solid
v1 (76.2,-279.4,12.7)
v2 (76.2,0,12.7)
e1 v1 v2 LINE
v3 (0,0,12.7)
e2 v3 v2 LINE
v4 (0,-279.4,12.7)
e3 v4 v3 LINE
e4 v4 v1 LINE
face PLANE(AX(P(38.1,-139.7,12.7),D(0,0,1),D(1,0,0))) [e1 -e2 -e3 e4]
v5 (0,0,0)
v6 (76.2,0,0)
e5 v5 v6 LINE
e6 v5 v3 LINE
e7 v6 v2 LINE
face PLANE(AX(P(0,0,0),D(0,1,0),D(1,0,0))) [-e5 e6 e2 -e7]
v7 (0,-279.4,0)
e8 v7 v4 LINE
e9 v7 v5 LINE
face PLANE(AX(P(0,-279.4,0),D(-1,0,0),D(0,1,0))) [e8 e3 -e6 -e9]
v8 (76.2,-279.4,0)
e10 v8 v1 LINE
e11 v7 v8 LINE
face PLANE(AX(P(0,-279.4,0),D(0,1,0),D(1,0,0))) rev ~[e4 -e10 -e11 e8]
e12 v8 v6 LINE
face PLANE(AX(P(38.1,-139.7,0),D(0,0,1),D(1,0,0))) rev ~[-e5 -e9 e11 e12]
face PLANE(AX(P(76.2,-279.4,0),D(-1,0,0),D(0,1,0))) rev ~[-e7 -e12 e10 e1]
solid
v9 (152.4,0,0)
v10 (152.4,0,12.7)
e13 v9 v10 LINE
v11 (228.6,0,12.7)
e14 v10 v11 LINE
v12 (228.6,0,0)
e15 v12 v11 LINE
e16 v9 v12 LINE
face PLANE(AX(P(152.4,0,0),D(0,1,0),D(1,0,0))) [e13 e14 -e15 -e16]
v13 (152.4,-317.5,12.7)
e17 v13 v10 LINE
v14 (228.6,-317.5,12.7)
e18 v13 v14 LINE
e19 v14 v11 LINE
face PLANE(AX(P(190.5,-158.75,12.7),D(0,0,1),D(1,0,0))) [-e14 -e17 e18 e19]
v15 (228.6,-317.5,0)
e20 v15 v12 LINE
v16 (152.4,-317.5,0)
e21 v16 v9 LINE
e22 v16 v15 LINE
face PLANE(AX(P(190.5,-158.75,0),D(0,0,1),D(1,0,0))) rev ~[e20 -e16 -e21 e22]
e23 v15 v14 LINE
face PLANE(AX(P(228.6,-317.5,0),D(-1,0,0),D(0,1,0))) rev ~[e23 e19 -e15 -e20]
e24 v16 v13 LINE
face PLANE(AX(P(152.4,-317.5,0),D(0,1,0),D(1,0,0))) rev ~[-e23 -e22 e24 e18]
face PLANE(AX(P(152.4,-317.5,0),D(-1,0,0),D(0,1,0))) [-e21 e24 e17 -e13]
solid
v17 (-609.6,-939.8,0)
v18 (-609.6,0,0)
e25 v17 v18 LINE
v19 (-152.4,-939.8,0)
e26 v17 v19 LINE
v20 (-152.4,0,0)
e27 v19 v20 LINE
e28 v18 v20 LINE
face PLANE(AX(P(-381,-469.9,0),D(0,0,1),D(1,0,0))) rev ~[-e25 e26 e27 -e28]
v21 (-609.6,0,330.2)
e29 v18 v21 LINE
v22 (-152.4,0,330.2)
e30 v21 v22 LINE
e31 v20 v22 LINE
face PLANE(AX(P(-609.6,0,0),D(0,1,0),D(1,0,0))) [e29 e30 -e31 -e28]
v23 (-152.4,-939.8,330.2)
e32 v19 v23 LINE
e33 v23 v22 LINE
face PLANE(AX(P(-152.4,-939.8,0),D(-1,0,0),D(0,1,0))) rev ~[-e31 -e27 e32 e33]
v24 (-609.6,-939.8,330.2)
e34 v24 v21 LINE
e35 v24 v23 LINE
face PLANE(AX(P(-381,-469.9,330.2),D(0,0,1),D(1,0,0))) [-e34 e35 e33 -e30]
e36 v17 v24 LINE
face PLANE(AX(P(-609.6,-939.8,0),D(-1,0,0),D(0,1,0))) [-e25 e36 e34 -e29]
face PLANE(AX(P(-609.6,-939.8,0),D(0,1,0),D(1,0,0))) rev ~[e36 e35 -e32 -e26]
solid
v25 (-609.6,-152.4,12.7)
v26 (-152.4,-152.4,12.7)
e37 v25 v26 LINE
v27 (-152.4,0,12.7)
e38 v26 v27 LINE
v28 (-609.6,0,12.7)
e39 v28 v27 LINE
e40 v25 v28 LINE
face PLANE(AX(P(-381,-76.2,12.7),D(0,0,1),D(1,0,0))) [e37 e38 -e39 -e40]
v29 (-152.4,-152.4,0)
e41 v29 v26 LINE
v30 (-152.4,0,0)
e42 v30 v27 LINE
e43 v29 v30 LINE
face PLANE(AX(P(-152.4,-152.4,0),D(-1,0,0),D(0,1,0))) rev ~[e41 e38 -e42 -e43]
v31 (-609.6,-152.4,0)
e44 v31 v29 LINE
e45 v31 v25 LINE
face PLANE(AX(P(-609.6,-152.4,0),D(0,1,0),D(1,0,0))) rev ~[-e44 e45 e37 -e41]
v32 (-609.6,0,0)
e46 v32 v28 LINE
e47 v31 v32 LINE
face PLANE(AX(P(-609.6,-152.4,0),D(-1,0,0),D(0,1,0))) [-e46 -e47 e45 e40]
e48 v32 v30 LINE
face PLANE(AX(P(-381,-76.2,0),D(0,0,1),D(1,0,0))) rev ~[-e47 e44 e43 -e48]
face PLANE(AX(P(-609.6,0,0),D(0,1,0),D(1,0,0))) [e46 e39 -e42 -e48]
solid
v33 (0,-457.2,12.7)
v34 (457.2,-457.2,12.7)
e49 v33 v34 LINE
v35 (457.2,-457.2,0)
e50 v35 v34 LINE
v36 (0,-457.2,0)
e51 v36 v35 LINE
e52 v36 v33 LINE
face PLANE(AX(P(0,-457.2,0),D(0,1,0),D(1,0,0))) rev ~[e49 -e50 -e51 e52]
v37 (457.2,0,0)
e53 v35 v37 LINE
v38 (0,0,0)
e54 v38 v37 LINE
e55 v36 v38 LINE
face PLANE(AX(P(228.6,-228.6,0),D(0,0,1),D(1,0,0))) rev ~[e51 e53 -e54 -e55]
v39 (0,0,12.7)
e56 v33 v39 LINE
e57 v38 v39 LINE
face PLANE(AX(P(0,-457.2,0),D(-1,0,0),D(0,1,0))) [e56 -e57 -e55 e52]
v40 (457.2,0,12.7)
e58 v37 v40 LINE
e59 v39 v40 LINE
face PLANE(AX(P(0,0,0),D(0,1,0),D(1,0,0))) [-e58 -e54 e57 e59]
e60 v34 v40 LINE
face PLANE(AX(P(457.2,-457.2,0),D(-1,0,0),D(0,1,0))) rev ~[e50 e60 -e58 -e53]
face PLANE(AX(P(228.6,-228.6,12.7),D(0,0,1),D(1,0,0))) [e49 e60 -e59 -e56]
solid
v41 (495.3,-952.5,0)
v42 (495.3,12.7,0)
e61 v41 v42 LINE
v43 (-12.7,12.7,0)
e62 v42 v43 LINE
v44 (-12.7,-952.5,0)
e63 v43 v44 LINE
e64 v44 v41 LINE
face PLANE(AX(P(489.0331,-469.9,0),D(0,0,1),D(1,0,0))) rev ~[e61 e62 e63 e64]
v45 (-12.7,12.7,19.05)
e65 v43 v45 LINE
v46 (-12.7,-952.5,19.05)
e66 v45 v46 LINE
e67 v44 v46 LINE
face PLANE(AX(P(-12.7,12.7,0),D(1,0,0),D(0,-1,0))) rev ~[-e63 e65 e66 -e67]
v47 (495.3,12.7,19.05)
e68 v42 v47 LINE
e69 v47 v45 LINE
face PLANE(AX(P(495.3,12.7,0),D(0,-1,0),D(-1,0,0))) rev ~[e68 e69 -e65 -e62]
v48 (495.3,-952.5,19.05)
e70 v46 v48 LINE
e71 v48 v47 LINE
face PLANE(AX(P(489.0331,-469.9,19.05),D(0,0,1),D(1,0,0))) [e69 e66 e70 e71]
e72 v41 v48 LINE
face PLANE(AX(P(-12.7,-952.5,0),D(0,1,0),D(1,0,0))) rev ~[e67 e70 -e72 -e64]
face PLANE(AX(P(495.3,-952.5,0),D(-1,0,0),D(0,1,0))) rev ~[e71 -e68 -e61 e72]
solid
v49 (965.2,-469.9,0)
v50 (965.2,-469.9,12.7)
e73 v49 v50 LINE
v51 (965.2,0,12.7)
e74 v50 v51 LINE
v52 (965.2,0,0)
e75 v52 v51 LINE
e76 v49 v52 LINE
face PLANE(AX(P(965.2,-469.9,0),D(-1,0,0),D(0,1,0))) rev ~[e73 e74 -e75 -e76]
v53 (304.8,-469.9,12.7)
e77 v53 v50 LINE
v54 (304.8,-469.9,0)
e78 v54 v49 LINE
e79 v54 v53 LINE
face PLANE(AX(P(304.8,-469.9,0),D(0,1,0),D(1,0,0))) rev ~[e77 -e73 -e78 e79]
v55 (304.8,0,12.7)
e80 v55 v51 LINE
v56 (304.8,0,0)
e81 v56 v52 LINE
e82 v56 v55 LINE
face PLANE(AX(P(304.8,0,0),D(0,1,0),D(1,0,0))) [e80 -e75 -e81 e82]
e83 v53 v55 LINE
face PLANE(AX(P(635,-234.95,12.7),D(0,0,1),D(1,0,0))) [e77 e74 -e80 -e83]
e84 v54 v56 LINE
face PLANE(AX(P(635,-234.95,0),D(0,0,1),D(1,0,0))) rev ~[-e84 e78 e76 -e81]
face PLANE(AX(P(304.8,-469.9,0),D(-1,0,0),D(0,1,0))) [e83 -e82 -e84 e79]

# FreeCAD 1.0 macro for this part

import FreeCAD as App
import Part
import Sketcher
from FreeCAD import Vector
Q = App.Units.Quantity


def add_polygon(sketch, points):
    """Adds a closed chain of lines whose ends are joined by coincident constraints."""
    first, n = sketch.GeometryCount, len(points)
    for a, b in zip(points, points[1:] + points[:1]):
        sketch.addGeometry(Part.LineSegment(App.Vector(*a, 0), App.Vector(*b, 0)), False)
    for i in range(n):
        sketch.addConstraint(Sketcher.Constraint("Coincident", first + i, 2, first + (i + 1) % n, 1))

doc = App.newDocument("Part")
body = doc.addObject("PartDesign::Body", "Body")

# Sketch on XY plane
sketch1 = doc.addObject("Sketcher::SketchObject", "Sketch")
body.addObject(sketch1)
sketch1.AttachmentSupport = (doc.XY_Plane, [""])
sketch1.MapMode = "FlatFace"
add_polygon(sketch1, [(-610, 0), (-610, -940), (-152, -940), (-152, 0)])  # lines 0-3
sketch1.addConstraint([
    Sketcher.Constraint("Vertical", 0),
    Sketcher.Constraint("Horizontal", 1),
    Sketcher.Constraint("Vertical", 2),
    Sketcher.Constraint("Horizontal", 3),
    Sketcher.Constraint("PointOnObject", 2, 2, -1),
    Sketcher.Constraint("DistanceX", 1, 1, 1, 2, Q("18 in")),
    Sketcher.Constraint("DistanceY", 0, 2, 0, 1, Q("37 in")),
    Sketcher.Constraint("DistanceX", 0, 2, -1, 1, Q("24 in")),
])
pad1 = doc.addObject("PartDesign::Pad", "Pad")
body.addObject(pad1)
pad1.Profile = sketch1
pad1.Length = Q("13 in")
body2 = doc.addObject("PartDesign::Body", "Body001")

# Sketch on XY plane
sketch2 = doc.addObject("Sketcher::SketchObject", "Sketch001")
body2.addObject(sketch2)
sketch2.AttachmentSupport = (doc.getObject("XY_Plane001"), [""])
sketch2.MapMode = "FlatFace"
add_polygon(sketch2, [(495, -952), (495, 13), (-13, 13), (-13, -952)])  # lines 0-3
sketch2.addConstraint([
    Sketcher.Constraint("Vertical", 0),
    Sketcher.Constraint("Horizontal", 1),
    Sketcher.Constraint("Vertical", 2),
    Sketcher.Constraint("Horizontal", 3),
    Sketcher.Constraint("DistanceX", 1, 2, 1, 1, Q("20 in")),
    Sketcher.Constraint("DistanceY", 0, 1, 0, 2, Q("38 in")),
    Sketcher.Constraint("DistanceX", -1, 1, 0, 2, Q("19.5 in")),
    Sketcher.Constraint("DistanceY", -1, 1, 0, 2, Q("0.5 in")),
])
pad2 = doc.addObject("PartDesign::Pad", "Pad001")
body2.addObject(pad2)
pad2.Profile = sketch2
pad2.Length = Q("0.75 in")
body3 = doc.addObject("PartDesign::Body", "Body002")
body3.AllowCompound = True

# Sketch on XY plane
sketch3 = doc.addObject("Sketcher::SketchObject", "Sketch002")
body3.addObject(sketch3)
sketch3.AttachmentSupport = (doc.getObject("XY_Plane002"), [""])
sketch3.MapMode = "FlatFace"
add_polygon(sketch3, [(305, 0), (305, -470), (965, -470), (965, 0)])  # lines 0-3
add_polygon(sketch3, [(152, 0), (152, -318), (229, -318), (229, 0)])  # lines 4-7
add_polygon(sketch3, [(0, 0), (0, -279), (76, -279), (76, 0)])  # lines 8-11
sketch3.addConstraint([
    Sketcher.Constraint("Vertical", 0),
    Sketcher.Constraint("Horizontal", 1),
    Sketcher.Constraint("Vertical", 2),
    Sketcher.Constraint("Horizontal", 3),
    Sketcher.Constraint("Vertical", 4),
    Sketcher.Constraint("Horizontal", 5),
    Sketcher.Constraint("Vertical", 6),
    Sketcher.Constraint("Horizontal", 7),
    Sketcher.Constraint("Vertical", 8),
    Sketcher.Constraint("Horizontal", 9),
    Sketcher.Constraint("Vertical", 10),
    Sketcher.Constraint("Horizontal", 11),
    Sketcher.Constraint("Coincident", 11, 2, -1, 1),
    Sketcher.Constraint("PointOnObject", 2, 2, -1),
    Sketcher.Constraint("PointOnObject", 6, 2, -1),
    Sketcher.Constraint("Equal", 7, 9),
    Sketcher.Constraint("DistanceX", 1, 1, 1, 2, Q("26 in")),
    Sketcher.Constraint("DistanceX", 5, 1, 5, 2, Q("3 in")),
    Sketcher.Constraint("DistanceY", 8, 2, 8, 1, Q("11 in")),
    Sketcher.Constraint("DistanceY", 0, 2, 0, 1, Q("18.5 in")),
    Sketcher.Constraint("DistanceY", 4, 2, 4, 1, Q("12.5 in")),
    Sketcher.Constraint("DistanceX", -1, 1, 0, 2, Q("12 in")),
    Sketcher.Constraint("DistanceX", -1, 1, 4, 2, Q("6 in")),
])
pad3 = doc.addObject("PartDesign::Pad", "Pad002")
body3.addObject(pad3)
pad3.Profile = sketch3
pad3.Length = Q("0.5 in")
body4 = doc.addObject("PartDesign::Body", "Body003")
body4.AllowCompound = True

# Sketch on XY plane
sketch4 = doc.addObject("Sketcher::SketchObject", "Sketch003")
body4.addObject(sketch4)
sketch4.AttachmentSupport = (doc.getObject("XY_Plane003"), [""])
sketch4.MapMode = "FlatFace"
add_polygon(sketch4, [(-610, 0), (-610, -152), (-152, -152), (-152, 0)])  # lines 0-3
add_polygon(sketch4, [(0, 0), (0, -457), (457, -457), (457, 0)])  # lines 4-7
sketch4.addConstraint([
    Sketcher.Constraint("Vertical", 0),
    Sketcher.Constraint("Horizontal", 1),
    Sketcher.Constraint("Vertical", 2),
    Sketcher.Constraint("Horizontal", 3),
    Sketcher.Constraint("Vertical", 4),
    Sketcher.Constraint("Horizontal", 5),
    Sketcher.Constraint("Vertical", 6),
    Sketcher.Constraint("Horizontal", 7),
    Sketcher.Constraint("Coincident", 7, 2, -1, 1),
    Sketcher.Constraint("PointOnObject", 2, 2, -1),
    Sketcher.Constraint("Equal", 3, 5),
    Sketcher.Constraint("Equal", 7, 4),
    Sketcher.Constraint("DistanceX", 1, 1, 1, 2, Q("18 in")),
    Sketcher.Constraint("DistanceY", 0, 2, 0, 1, Q("6 in")),
    Sketcher.Constraint("DistanceX", 0, 2, -1, 1, Q("24 in")),
])
pad4 = doc.addObject("PartDesign::Pad", "Pad003")
body4.addObject(pad4)
pad4.Profile = sketch4
pad4.Length = Q("0.5 in")

doc.recompute()
